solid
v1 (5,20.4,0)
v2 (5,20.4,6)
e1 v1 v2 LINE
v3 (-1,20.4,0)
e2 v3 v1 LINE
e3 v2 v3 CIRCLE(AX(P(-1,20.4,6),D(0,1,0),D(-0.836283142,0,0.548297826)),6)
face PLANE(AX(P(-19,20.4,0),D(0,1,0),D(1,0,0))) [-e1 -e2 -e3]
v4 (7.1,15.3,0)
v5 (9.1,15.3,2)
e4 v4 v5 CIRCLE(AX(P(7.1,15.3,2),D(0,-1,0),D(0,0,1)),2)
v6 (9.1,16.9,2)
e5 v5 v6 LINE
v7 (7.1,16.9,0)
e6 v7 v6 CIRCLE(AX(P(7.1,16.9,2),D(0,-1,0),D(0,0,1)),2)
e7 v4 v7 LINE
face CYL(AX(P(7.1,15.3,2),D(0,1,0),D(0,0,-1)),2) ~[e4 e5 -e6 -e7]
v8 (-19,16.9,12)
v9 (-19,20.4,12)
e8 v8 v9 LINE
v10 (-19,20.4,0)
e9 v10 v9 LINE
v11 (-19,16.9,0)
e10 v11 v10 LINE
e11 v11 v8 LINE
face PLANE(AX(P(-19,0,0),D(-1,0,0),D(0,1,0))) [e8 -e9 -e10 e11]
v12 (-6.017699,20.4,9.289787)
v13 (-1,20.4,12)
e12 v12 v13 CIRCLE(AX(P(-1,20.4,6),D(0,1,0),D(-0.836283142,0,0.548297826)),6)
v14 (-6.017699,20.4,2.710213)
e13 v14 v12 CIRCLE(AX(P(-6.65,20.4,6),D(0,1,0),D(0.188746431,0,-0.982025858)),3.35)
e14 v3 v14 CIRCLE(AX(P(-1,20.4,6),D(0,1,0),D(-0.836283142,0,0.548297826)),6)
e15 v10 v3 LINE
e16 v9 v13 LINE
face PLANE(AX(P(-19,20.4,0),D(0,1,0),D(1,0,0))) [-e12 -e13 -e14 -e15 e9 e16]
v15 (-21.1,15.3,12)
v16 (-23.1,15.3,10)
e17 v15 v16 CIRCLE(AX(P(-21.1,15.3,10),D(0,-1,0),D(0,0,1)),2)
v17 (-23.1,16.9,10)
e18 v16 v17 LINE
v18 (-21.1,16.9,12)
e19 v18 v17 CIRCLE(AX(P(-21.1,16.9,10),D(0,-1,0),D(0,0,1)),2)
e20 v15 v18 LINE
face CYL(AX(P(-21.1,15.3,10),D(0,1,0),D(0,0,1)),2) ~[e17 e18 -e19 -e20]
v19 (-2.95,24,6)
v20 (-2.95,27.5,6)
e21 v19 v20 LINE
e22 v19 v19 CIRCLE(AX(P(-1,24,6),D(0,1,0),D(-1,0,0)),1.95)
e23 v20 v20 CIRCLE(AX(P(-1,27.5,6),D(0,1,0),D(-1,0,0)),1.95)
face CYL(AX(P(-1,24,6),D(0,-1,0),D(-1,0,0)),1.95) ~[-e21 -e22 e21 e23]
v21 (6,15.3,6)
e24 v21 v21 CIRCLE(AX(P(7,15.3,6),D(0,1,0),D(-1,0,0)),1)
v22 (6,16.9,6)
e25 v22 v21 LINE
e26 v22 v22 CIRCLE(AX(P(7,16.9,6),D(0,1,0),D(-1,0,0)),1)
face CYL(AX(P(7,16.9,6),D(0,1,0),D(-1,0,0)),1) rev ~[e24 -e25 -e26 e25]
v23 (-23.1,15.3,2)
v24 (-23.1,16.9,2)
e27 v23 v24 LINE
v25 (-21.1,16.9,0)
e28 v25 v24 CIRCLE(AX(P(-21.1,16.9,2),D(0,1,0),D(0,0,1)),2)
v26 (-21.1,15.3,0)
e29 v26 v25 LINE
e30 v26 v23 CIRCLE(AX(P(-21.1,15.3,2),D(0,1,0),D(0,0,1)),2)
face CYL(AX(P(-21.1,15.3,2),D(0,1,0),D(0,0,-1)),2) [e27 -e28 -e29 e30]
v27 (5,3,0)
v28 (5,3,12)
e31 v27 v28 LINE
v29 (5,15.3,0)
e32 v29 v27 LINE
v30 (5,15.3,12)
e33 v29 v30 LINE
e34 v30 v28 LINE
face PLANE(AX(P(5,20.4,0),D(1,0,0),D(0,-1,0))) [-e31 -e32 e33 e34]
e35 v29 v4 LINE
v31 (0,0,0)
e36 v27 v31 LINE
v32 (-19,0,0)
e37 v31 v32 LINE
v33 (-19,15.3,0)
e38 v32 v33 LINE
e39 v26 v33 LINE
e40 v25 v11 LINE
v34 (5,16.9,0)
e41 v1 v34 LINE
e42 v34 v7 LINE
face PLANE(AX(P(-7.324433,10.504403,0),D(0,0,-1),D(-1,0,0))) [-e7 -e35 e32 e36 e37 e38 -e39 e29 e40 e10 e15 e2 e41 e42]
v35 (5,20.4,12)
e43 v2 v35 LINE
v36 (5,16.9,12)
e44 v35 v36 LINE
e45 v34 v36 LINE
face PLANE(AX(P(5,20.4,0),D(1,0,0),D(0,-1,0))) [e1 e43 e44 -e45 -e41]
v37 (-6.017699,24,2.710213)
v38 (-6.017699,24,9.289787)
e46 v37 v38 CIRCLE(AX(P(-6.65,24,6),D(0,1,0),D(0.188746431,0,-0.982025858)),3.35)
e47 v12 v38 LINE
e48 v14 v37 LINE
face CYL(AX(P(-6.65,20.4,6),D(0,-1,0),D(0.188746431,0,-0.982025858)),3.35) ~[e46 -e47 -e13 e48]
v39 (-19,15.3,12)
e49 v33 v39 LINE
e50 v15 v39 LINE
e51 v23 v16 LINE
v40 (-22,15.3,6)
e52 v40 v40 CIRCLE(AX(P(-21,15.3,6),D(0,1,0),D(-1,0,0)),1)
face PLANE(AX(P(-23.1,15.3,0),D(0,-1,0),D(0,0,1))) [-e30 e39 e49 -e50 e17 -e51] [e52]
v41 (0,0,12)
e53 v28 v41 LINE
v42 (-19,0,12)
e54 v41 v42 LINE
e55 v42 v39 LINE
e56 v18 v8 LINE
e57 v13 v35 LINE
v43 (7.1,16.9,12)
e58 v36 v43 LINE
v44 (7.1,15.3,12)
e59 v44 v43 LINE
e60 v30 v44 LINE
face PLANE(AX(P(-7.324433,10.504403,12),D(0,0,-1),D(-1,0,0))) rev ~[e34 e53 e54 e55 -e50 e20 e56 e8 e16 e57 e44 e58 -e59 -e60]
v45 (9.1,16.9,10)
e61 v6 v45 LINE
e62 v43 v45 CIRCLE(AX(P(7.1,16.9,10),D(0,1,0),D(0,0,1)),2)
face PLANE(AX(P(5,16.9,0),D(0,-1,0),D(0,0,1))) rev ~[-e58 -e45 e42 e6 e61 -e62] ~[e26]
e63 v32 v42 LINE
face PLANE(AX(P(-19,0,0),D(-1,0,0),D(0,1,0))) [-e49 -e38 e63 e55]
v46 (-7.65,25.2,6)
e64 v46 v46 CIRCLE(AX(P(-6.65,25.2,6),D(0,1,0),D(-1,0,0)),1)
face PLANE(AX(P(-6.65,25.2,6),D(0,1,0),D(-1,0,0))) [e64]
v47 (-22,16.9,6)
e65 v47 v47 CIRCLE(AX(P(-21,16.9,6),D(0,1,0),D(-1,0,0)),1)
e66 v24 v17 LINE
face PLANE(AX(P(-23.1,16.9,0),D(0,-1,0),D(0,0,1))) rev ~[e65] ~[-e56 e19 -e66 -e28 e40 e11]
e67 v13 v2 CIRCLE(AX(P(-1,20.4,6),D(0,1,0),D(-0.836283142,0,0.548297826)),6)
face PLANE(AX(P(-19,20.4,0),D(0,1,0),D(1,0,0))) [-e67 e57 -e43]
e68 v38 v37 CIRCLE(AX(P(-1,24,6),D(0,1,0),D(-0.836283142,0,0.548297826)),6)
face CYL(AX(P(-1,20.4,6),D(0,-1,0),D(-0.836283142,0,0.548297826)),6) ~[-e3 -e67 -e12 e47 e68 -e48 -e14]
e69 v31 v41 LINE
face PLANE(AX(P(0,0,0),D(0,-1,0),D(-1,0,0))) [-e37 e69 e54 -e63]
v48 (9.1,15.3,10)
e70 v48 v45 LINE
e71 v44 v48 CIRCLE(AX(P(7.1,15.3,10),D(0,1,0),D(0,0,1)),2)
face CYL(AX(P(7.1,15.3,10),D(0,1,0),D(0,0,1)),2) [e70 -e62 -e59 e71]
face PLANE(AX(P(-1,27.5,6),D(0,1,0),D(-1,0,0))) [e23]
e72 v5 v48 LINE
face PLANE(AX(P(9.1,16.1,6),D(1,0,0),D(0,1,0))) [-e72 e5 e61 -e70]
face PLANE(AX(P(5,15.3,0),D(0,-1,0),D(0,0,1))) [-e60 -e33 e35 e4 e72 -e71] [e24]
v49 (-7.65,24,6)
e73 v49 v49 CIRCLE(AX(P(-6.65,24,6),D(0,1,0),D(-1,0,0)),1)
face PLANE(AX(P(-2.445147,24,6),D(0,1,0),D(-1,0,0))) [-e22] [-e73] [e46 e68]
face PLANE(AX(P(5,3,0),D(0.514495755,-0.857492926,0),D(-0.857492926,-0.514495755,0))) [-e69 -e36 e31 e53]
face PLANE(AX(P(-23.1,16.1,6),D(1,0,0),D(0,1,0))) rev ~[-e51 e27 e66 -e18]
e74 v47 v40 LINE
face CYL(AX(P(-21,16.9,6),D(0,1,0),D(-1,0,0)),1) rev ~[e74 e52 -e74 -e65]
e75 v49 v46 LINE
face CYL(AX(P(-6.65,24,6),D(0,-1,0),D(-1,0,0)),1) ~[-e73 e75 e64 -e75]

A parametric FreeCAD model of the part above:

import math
import FreeCAD as App
import Part
import Sketcher

V = App.Vector
Q = App.Units.Quantity


def edges_at(feature, points):
    """Names of the edges that pass closest to the given points."""
    edges = feature.Shape.Edges
    near = lambda p: min(range(len(edges)), key=lambda i: edges[i].distToShape(Part.Vertex(*p))[0])
    return sorted({f"Edge{near(p) + 1}" for p in points})

doc = App.newDocument("Part")
body = doc.addObject("PartDesign::Body", "Body")

sketch1 = body.newObject("Sketcher::SketchObject", "Sketch")
sketch1.AttachmentSupport = (doc.getObject("XY_Plane"), [""])
sketch1.MapMode = "FlatFace"
sketch1.addGeometry([
    Part.LineSegment(V(5, 20.4, 0), V(-19, 20.4, 0)),
    Part.LineSegment(V(-19, 20.4, 0), V(-19, 0, 0)),
    Part.LineSegment(V(-19, 0, 0), V(0, 0, 0)),
    Part.LineSegment(V(0, 0, 0), V(5, 3, 0)),
    Part.LineSegment(V(5, 3, 0), V(5, 20.4, 0)),
], False)
sketch1.addConstraint([
    Sketcher.Constraint("Coincident", 0, 2, 1, 1),
    Sketcher.Constraint("Coincident", 1, 2, 2, 1),
    Sketcher.Constraint("Coincident", 2, 2, 3, 1),
    Sketcher.Constraint("Coincident", 3, 2, 4, 1),
    Sketcher.Constraint("Coincident", 4, 2, 0, 1),
    Sketcher.Constraint("Horizontal", 0),
    Sketcher.Constraint("Vertical", 1),
    Sketcher.Constraint("Horizontal", 2),
    Sketcher.Constraint("Vertical", 4),
    Sketcher.Constraint("Coincident", 2, 2, -1, 1),
    Sketcher.Constraint("DistanceX", 0, 2, 0, 1, Q("24 mm")),
    Sketcher.Constraint("DistanceX", 2, 1, 2, 2, Q("19 mm")),
    Sketcher.Constraint("DistanceY", 1, 2, 1, 1, Q("20.4 mm")),
    Sketcher.Constraint("DistanceY", 4, 1, 4, 2, Q("17.4 mm")),
])
pad1 = body.newObject("PartDesign::Pad", "Pad")
pad1.Profile = sketch1
pad1.Length = 12

sketch2 = body.newObject("Sketcher::SketchObject", "Sketch001")
sketch2.AttachmentSupport = (doc.getObject("YZ_Plane"), [""])
sketch2.MapMode = "FlatFace"
sketch2.AttachmentOffset = App.Placement(V(0, 0, 5), App.Rotation())
sketch2.addGeometry([
    Part.LineSegment(V(15.3, 12, 0), V(15.3, 0, 0)),
    Part.LineSegment(V(15.3, 0, 0), V(16.9, 0, 0)),
    Part.LineSegment(V(16.9, 0, 0), V(16.9, 12, 0)),
    Part.LineSegment(V(16.9, 12, 0), V(15.3, 12, 0)),
], False)
sketch2.addConstraint([
    Sketcher.Constraint("Coincident", 0, 2, 1, 1),
    Sketcher.Constraint("Coincident", 1, 2, 2, 1),
    Sketcher.Constraint("Coincident", 2, 2, 3, 1),
    Sketcher.Constraint("Coincident", 3, 2, 0, 1),
    Sketcher.Constraint("Vertical", 0),
    Sketcher.Constraint("Horizontal", 1),
    Sketcher.Constraint("Vertical", 2),
    Sketcher.Constraint("Horizontal", 3),
    Sketcher.Constraint("PointOnObject", 0, 2, -1),
    Sketcher.Constraint("DistanceY", 0, 2, 0, 1, Q("12 mm")),
    Sketcher.Constraint("DistanceX", 1, 1, 1, 2, Q("1.6 mm")),
    Sketcher.Constraint("DistanceX", -1, 1, 0, 2, Q("15.3 mm")),
])
pad2 = body.newObject("PartDesign::Pad", "Pad001")
pad2.Profile = sketch2
pad2.Length = 4.1
doc.recompute()

linearpattern = body.newObject("PartDesign::LinearPattern", "LinearPattern")
linearpattern.Originals = [pad2]
linearpattern.Direction = (doc.getObject("X_Axis"), [""])
linearpattern.Mode = "offset"
linearpattern.Offset = 28.1
linearpattern.Occurrences = 2
linearpattern.Reversed = True
body.Tip = linearpattern

sketch3 = body.newObject("Sketcher::SketchObject", "Sketch002")
sketch3.AttachmentSupport = (doc.getObject("XZ_Plane"), [""])
sketch3.MapMode = "FlatFace"
sketch3.AttachmentOffset = App.Placement(V(0, 0, -20.4), App.Rotation())
sketch3.addGeometry([
    Part.ArcOfCircle(Part.Circle(V(-1, 6, 0), V(0, 0, 1), 6), math.radians(-146.749685), math.radians(146.749685)),
    Part.ArcOfCircle(Part.Circle(V(-6.65, 6, 0), V(0, 0, 1), 3.35), math.radians(79.120364), math.radians(280.879636)),
], False)
sketch3.addConstraint([
    Sketcher.Constraint("Coincident", 0, 1, 1, 2),
    Sketcher.Constraint("Coincident", 1, 1, 0, 2),
    Sketcher.Constraint("Horizontal", 0, 3, 1, 3),
    Sketcher.Constraint("Radius", 0, Q("6 mm")),
    Sketcher.Constraint("Radius", 1, Q("3.35 mm")),
    Sketcher.Constraint("DistanceX", 0, 3, -1, 1, Q("1 mm")),
    Sketcher.Constraint("DistanceY", -1, 1, 0, 3, Q("6 mm")),
    Sketcher.Constraint("DistanceX", 1, 3, -1, 1, Q("6.65 mm")),
])
pad3 = body.newObject("PartDesign::Pad", "Pad002")
pad3.Profile = sketch3
pad3.Length = 3.6
pad3.Reversed = True

sketch4 = body.newObject("Sketcher::SketchObject", "Sketch003")
sketch4.AttachmentSupport = (doc.getObject("XZ_Plane"), [""])
sketch4.MapMode = "FlatFace"
sketch4.AttachmentOffset = App.Placement(V(0, 0, -24), App.Rotation())
sketch4.addGeometry(Part.Circle(V(-1, 6, 0), V(0, 0, 1), 1.95), False)
sketch4.addConstraint([
    Sketcher.Constraint("Diameter", 0, Q("3.9 mm")),
    Sketcher.Constraint("DistanceX", 0, 3, -1, 1, Q("1 mm")),
    Sketcher.Constraint("DistanceY", -1, 1, 0, 3, Q("6 mm")),
])
pad4 = body.newObject("PartDesign::Pad", "Pad003")
pad4.Profile = sketch4
pad4.Length = 3.5
pad4.Reversed = True

sketch5 = body.newObject("Sketcher::SketchObject", "Sketch004")
sketch5.AttachmentSupport = (doc.getObject("XZ_Plane"), [""])
sketch5.MapMode = "FlatFace"
sketch5.AttachmentOffset = App.Placement(V(0, 0, -24), App.Rotation())
sketch5.addGeometry(Part.Circle(V(-6.65, 6, 0), V(0, 0, 1), 1), False)
sketch5.addConstraint([
    Sketcher.Constraint("Diameter", 0, Q("2 mm")),
    Sketcher.Constraint("DistanceY", -1, 1, 0, 3, Q("6 mm")),
    Sketcher.Constraint("DistanceX", 0, 3, -1, 1, Q("6.65 mm")),
])
pad5 = body.newObject("PartDesign::Pad", "Pad004")
pad5.Profile = sketch5
pad5.Length = 1.2
pad5.Reversed = True
doc.recompute()

fillet = body.newObject("PartDesign::Fillet", "Fillet")
fillet.Base = (pad5, edges_at(pad5, [(9.1, 16.1, 12)]))
fillet.Radius = 2
doc.recompute()

fillet2 = body.newObject("PartDesign::Fillet", "Fillet001")
fillet2.Base = (fillet, edges_at(fillet, [(-23.1, 16.1, 12)]))
fillet2.Radius = 2
doc.recompute()

fillet3 = body.newObject("PartDesign::Fillet", "Fillet002")
fillet3.Base = (fillet2, edges_at(fillet2, [(9.1, 16.1, 0)]))
fillet3.Radius = 2
doc.recompute()

fillet4 = body.newObject("PartDesign::Fillet", "Fillet003")
fillet4.Base = (fillet3, edges_at(fillet3, [(-23.1, 16.1, 0)]))
fillet4.Radius = 2

sketch6 = body.newObject("Sketcher::SketchObject", "Sketch005")
sketch6.AttachmentSupport = (doc.getObject("XZ_Plane"), [""])
sketch6.MapMode = "FlatFace"
sketch6.AttachmentOffset = App.Placement(V(0, 0, -16.9), App.Rotation())
sketch6.addGeometry([
    Part.Circle(V(7, 6, 0), V(0, 0, 1), 1),
    Part.Circle(V(-21, 6, 0), V(0, 0, 1), 1),
], False)
sketch6.addConstraint([
    Sketcher.Constraint("Equal", 0, 1),
    Sketcher.Constraint("Horizontal", 0, 3, 1, 3),
    Sketcher.Constraint("Diameter", 0, Q("2 mm")),
    Sketcher.Constraint("DistanceX", -1, 1, 0, 3, Q("7 mm")),
    Sketcher.Constraint("DistanceY", -1, 1, 0, 3, Q("6 mm")),
    Sketcher.Constraint("DistanceX", 1, 3, -1, 1, Q("21 mm")),
])
pocket1 = body.newObject("PartDesign::Pocket", "Pocket")
pocket1.Profile = sketch6
pocket1.Type = "ThroughAll"
pocket1.Reversed = True

doc.recompute()
